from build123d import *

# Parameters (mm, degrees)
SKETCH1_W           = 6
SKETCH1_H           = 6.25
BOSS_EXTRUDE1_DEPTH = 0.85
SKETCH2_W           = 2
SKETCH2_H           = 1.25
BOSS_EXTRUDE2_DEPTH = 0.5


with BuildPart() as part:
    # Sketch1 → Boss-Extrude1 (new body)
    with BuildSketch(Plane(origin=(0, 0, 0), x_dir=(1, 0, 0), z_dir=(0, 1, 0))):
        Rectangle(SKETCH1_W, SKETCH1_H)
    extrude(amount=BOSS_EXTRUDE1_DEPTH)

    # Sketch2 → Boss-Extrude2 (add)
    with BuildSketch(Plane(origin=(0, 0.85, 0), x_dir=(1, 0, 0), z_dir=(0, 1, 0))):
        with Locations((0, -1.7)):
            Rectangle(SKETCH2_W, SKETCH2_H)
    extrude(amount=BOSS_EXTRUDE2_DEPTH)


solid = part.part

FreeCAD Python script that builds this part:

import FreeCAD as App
import Part
import Sketcher

V = App.Vector

doc = App.newDocument("Part")
body = doc.addObject("PartDesign::Body", "Body")

# Sketch on XZ plane
sketch1 = doc.addObject("Sketcher::SketchObject", "Sketch")
body.addObject(sketch1)
sketch1.AttachmentSupport = (doc.XZ_Plane, [""])
sketch1.MapMode = "FlatFace"
sketch1.addGeometry([
    Part.LineSegment(V(-3, -3, 0), V(-3, 3, 0)),
    Part.LineSegment(V(-3, 3, 0), V(3, 3, 0)),
    Part.LineSegment(V(3, 3, 0), V(3, -3, 0)),
    Part.LineSegment(V(3, -3, 0), V(-3, -3, 0)),
], False)
sketch1.addConstraint([
    Sketcher.Constraint("Coincident", 0, 2, 1, 1),
    Sketcher.Constraint("Coincident", 1, 2, 2, 1),
    Sketcher.Constraint("Coincident", 2, 2, 3, 1),
    Sketcher.Constraint("Coincident", 3, 2, 0, 1),
    Sketcher.Constraint("Vertical", 0),
    Sketcher.Constraint("Horizontal", 1),
    Sketcher.Constraint("Vertical", 2),
    Sketcher.Constraint("Horizontal", 3),
    Sketcher.Constraint("Symmetric", 0, 2, 2, 2, -1, 1),
    Sketcher.Constraint("DistanceX", 1, 1, 1, 2, 6.0),
    Sketcher.Constraint("DistanceY", 0, 1, 0, 2, 6.25),
])
pad1 = doc.addObject("PartDesign::Pad", "Pad")
body.addObject(pad1)
pad1.Profile = sketch1
pad1.Length = 0.85
pad1.Reversed = True

# Sketch on XZ plane
sketch2 = doc.addObject("Sketcher::SketchObject", "Sketch001")
body.addObject(sketch2)
sketch2.AttachmentSupport = (doc.XZ_Plane, [""])
sketch2.MapMode = "FlatFace"
sketch2.AttachmentOffset = App.Placement(V(0, 0, -0.85), App.Rotation())
sketch2.addGeometry([
    Part.LineSegment(V(-1, 1.1, 0), V(-1, 2.3, 0)),
    Part.LineSegment(V(-1, 2.3, 0), V(1, 2.3, 0)),
    Part.LineSegment(V(1, 2.3, 0), V(1, 1.1, 0)),
    Part.LineSegment(V(1, 1.1, 0), V(-1, 1.1, 0)),
], False)
sketch2.addConstraint([
    Sketcher.Constraint("Coincident", 0, 2, 1, 1),
    Sketcher.Constraint("Coincident", 1, 2, 2, 1),
    Sketcher.Constraint("Coincident", 2, 2, 3, 1),
    Sketcher.Constraint("Coincident", 3, 2, 0, 1),
    Sketcher.Constraint("Vertical", 0),
    Sketcher.Constraint("Horizontal", 1),
    Sketcher.Constraint("Vertical", 2),
    Sketcher.Constraint("Horizontal", 3),
    Sketcher.Constraint("DistanceX", 1, 1, 1, 2, 2.0),
    Sketcher.Constraint("DistanceX", 0, 2, -1, 1, 1.0),
    Sketcher.Constraint("DistanceY", 0, 1, 0, 2, 1.25),
    Sketcher.Constraint("DistanceY", -1, 1, 0, 2, 2.325),
])
pad2 = doc.addObject("PartDesign::Pad", "Pad001")
body.addObject(pad2)
pad2.Profile = sketch2
pad2.Length = 0.5
pad2.Reversed = True

doc.recompute()
